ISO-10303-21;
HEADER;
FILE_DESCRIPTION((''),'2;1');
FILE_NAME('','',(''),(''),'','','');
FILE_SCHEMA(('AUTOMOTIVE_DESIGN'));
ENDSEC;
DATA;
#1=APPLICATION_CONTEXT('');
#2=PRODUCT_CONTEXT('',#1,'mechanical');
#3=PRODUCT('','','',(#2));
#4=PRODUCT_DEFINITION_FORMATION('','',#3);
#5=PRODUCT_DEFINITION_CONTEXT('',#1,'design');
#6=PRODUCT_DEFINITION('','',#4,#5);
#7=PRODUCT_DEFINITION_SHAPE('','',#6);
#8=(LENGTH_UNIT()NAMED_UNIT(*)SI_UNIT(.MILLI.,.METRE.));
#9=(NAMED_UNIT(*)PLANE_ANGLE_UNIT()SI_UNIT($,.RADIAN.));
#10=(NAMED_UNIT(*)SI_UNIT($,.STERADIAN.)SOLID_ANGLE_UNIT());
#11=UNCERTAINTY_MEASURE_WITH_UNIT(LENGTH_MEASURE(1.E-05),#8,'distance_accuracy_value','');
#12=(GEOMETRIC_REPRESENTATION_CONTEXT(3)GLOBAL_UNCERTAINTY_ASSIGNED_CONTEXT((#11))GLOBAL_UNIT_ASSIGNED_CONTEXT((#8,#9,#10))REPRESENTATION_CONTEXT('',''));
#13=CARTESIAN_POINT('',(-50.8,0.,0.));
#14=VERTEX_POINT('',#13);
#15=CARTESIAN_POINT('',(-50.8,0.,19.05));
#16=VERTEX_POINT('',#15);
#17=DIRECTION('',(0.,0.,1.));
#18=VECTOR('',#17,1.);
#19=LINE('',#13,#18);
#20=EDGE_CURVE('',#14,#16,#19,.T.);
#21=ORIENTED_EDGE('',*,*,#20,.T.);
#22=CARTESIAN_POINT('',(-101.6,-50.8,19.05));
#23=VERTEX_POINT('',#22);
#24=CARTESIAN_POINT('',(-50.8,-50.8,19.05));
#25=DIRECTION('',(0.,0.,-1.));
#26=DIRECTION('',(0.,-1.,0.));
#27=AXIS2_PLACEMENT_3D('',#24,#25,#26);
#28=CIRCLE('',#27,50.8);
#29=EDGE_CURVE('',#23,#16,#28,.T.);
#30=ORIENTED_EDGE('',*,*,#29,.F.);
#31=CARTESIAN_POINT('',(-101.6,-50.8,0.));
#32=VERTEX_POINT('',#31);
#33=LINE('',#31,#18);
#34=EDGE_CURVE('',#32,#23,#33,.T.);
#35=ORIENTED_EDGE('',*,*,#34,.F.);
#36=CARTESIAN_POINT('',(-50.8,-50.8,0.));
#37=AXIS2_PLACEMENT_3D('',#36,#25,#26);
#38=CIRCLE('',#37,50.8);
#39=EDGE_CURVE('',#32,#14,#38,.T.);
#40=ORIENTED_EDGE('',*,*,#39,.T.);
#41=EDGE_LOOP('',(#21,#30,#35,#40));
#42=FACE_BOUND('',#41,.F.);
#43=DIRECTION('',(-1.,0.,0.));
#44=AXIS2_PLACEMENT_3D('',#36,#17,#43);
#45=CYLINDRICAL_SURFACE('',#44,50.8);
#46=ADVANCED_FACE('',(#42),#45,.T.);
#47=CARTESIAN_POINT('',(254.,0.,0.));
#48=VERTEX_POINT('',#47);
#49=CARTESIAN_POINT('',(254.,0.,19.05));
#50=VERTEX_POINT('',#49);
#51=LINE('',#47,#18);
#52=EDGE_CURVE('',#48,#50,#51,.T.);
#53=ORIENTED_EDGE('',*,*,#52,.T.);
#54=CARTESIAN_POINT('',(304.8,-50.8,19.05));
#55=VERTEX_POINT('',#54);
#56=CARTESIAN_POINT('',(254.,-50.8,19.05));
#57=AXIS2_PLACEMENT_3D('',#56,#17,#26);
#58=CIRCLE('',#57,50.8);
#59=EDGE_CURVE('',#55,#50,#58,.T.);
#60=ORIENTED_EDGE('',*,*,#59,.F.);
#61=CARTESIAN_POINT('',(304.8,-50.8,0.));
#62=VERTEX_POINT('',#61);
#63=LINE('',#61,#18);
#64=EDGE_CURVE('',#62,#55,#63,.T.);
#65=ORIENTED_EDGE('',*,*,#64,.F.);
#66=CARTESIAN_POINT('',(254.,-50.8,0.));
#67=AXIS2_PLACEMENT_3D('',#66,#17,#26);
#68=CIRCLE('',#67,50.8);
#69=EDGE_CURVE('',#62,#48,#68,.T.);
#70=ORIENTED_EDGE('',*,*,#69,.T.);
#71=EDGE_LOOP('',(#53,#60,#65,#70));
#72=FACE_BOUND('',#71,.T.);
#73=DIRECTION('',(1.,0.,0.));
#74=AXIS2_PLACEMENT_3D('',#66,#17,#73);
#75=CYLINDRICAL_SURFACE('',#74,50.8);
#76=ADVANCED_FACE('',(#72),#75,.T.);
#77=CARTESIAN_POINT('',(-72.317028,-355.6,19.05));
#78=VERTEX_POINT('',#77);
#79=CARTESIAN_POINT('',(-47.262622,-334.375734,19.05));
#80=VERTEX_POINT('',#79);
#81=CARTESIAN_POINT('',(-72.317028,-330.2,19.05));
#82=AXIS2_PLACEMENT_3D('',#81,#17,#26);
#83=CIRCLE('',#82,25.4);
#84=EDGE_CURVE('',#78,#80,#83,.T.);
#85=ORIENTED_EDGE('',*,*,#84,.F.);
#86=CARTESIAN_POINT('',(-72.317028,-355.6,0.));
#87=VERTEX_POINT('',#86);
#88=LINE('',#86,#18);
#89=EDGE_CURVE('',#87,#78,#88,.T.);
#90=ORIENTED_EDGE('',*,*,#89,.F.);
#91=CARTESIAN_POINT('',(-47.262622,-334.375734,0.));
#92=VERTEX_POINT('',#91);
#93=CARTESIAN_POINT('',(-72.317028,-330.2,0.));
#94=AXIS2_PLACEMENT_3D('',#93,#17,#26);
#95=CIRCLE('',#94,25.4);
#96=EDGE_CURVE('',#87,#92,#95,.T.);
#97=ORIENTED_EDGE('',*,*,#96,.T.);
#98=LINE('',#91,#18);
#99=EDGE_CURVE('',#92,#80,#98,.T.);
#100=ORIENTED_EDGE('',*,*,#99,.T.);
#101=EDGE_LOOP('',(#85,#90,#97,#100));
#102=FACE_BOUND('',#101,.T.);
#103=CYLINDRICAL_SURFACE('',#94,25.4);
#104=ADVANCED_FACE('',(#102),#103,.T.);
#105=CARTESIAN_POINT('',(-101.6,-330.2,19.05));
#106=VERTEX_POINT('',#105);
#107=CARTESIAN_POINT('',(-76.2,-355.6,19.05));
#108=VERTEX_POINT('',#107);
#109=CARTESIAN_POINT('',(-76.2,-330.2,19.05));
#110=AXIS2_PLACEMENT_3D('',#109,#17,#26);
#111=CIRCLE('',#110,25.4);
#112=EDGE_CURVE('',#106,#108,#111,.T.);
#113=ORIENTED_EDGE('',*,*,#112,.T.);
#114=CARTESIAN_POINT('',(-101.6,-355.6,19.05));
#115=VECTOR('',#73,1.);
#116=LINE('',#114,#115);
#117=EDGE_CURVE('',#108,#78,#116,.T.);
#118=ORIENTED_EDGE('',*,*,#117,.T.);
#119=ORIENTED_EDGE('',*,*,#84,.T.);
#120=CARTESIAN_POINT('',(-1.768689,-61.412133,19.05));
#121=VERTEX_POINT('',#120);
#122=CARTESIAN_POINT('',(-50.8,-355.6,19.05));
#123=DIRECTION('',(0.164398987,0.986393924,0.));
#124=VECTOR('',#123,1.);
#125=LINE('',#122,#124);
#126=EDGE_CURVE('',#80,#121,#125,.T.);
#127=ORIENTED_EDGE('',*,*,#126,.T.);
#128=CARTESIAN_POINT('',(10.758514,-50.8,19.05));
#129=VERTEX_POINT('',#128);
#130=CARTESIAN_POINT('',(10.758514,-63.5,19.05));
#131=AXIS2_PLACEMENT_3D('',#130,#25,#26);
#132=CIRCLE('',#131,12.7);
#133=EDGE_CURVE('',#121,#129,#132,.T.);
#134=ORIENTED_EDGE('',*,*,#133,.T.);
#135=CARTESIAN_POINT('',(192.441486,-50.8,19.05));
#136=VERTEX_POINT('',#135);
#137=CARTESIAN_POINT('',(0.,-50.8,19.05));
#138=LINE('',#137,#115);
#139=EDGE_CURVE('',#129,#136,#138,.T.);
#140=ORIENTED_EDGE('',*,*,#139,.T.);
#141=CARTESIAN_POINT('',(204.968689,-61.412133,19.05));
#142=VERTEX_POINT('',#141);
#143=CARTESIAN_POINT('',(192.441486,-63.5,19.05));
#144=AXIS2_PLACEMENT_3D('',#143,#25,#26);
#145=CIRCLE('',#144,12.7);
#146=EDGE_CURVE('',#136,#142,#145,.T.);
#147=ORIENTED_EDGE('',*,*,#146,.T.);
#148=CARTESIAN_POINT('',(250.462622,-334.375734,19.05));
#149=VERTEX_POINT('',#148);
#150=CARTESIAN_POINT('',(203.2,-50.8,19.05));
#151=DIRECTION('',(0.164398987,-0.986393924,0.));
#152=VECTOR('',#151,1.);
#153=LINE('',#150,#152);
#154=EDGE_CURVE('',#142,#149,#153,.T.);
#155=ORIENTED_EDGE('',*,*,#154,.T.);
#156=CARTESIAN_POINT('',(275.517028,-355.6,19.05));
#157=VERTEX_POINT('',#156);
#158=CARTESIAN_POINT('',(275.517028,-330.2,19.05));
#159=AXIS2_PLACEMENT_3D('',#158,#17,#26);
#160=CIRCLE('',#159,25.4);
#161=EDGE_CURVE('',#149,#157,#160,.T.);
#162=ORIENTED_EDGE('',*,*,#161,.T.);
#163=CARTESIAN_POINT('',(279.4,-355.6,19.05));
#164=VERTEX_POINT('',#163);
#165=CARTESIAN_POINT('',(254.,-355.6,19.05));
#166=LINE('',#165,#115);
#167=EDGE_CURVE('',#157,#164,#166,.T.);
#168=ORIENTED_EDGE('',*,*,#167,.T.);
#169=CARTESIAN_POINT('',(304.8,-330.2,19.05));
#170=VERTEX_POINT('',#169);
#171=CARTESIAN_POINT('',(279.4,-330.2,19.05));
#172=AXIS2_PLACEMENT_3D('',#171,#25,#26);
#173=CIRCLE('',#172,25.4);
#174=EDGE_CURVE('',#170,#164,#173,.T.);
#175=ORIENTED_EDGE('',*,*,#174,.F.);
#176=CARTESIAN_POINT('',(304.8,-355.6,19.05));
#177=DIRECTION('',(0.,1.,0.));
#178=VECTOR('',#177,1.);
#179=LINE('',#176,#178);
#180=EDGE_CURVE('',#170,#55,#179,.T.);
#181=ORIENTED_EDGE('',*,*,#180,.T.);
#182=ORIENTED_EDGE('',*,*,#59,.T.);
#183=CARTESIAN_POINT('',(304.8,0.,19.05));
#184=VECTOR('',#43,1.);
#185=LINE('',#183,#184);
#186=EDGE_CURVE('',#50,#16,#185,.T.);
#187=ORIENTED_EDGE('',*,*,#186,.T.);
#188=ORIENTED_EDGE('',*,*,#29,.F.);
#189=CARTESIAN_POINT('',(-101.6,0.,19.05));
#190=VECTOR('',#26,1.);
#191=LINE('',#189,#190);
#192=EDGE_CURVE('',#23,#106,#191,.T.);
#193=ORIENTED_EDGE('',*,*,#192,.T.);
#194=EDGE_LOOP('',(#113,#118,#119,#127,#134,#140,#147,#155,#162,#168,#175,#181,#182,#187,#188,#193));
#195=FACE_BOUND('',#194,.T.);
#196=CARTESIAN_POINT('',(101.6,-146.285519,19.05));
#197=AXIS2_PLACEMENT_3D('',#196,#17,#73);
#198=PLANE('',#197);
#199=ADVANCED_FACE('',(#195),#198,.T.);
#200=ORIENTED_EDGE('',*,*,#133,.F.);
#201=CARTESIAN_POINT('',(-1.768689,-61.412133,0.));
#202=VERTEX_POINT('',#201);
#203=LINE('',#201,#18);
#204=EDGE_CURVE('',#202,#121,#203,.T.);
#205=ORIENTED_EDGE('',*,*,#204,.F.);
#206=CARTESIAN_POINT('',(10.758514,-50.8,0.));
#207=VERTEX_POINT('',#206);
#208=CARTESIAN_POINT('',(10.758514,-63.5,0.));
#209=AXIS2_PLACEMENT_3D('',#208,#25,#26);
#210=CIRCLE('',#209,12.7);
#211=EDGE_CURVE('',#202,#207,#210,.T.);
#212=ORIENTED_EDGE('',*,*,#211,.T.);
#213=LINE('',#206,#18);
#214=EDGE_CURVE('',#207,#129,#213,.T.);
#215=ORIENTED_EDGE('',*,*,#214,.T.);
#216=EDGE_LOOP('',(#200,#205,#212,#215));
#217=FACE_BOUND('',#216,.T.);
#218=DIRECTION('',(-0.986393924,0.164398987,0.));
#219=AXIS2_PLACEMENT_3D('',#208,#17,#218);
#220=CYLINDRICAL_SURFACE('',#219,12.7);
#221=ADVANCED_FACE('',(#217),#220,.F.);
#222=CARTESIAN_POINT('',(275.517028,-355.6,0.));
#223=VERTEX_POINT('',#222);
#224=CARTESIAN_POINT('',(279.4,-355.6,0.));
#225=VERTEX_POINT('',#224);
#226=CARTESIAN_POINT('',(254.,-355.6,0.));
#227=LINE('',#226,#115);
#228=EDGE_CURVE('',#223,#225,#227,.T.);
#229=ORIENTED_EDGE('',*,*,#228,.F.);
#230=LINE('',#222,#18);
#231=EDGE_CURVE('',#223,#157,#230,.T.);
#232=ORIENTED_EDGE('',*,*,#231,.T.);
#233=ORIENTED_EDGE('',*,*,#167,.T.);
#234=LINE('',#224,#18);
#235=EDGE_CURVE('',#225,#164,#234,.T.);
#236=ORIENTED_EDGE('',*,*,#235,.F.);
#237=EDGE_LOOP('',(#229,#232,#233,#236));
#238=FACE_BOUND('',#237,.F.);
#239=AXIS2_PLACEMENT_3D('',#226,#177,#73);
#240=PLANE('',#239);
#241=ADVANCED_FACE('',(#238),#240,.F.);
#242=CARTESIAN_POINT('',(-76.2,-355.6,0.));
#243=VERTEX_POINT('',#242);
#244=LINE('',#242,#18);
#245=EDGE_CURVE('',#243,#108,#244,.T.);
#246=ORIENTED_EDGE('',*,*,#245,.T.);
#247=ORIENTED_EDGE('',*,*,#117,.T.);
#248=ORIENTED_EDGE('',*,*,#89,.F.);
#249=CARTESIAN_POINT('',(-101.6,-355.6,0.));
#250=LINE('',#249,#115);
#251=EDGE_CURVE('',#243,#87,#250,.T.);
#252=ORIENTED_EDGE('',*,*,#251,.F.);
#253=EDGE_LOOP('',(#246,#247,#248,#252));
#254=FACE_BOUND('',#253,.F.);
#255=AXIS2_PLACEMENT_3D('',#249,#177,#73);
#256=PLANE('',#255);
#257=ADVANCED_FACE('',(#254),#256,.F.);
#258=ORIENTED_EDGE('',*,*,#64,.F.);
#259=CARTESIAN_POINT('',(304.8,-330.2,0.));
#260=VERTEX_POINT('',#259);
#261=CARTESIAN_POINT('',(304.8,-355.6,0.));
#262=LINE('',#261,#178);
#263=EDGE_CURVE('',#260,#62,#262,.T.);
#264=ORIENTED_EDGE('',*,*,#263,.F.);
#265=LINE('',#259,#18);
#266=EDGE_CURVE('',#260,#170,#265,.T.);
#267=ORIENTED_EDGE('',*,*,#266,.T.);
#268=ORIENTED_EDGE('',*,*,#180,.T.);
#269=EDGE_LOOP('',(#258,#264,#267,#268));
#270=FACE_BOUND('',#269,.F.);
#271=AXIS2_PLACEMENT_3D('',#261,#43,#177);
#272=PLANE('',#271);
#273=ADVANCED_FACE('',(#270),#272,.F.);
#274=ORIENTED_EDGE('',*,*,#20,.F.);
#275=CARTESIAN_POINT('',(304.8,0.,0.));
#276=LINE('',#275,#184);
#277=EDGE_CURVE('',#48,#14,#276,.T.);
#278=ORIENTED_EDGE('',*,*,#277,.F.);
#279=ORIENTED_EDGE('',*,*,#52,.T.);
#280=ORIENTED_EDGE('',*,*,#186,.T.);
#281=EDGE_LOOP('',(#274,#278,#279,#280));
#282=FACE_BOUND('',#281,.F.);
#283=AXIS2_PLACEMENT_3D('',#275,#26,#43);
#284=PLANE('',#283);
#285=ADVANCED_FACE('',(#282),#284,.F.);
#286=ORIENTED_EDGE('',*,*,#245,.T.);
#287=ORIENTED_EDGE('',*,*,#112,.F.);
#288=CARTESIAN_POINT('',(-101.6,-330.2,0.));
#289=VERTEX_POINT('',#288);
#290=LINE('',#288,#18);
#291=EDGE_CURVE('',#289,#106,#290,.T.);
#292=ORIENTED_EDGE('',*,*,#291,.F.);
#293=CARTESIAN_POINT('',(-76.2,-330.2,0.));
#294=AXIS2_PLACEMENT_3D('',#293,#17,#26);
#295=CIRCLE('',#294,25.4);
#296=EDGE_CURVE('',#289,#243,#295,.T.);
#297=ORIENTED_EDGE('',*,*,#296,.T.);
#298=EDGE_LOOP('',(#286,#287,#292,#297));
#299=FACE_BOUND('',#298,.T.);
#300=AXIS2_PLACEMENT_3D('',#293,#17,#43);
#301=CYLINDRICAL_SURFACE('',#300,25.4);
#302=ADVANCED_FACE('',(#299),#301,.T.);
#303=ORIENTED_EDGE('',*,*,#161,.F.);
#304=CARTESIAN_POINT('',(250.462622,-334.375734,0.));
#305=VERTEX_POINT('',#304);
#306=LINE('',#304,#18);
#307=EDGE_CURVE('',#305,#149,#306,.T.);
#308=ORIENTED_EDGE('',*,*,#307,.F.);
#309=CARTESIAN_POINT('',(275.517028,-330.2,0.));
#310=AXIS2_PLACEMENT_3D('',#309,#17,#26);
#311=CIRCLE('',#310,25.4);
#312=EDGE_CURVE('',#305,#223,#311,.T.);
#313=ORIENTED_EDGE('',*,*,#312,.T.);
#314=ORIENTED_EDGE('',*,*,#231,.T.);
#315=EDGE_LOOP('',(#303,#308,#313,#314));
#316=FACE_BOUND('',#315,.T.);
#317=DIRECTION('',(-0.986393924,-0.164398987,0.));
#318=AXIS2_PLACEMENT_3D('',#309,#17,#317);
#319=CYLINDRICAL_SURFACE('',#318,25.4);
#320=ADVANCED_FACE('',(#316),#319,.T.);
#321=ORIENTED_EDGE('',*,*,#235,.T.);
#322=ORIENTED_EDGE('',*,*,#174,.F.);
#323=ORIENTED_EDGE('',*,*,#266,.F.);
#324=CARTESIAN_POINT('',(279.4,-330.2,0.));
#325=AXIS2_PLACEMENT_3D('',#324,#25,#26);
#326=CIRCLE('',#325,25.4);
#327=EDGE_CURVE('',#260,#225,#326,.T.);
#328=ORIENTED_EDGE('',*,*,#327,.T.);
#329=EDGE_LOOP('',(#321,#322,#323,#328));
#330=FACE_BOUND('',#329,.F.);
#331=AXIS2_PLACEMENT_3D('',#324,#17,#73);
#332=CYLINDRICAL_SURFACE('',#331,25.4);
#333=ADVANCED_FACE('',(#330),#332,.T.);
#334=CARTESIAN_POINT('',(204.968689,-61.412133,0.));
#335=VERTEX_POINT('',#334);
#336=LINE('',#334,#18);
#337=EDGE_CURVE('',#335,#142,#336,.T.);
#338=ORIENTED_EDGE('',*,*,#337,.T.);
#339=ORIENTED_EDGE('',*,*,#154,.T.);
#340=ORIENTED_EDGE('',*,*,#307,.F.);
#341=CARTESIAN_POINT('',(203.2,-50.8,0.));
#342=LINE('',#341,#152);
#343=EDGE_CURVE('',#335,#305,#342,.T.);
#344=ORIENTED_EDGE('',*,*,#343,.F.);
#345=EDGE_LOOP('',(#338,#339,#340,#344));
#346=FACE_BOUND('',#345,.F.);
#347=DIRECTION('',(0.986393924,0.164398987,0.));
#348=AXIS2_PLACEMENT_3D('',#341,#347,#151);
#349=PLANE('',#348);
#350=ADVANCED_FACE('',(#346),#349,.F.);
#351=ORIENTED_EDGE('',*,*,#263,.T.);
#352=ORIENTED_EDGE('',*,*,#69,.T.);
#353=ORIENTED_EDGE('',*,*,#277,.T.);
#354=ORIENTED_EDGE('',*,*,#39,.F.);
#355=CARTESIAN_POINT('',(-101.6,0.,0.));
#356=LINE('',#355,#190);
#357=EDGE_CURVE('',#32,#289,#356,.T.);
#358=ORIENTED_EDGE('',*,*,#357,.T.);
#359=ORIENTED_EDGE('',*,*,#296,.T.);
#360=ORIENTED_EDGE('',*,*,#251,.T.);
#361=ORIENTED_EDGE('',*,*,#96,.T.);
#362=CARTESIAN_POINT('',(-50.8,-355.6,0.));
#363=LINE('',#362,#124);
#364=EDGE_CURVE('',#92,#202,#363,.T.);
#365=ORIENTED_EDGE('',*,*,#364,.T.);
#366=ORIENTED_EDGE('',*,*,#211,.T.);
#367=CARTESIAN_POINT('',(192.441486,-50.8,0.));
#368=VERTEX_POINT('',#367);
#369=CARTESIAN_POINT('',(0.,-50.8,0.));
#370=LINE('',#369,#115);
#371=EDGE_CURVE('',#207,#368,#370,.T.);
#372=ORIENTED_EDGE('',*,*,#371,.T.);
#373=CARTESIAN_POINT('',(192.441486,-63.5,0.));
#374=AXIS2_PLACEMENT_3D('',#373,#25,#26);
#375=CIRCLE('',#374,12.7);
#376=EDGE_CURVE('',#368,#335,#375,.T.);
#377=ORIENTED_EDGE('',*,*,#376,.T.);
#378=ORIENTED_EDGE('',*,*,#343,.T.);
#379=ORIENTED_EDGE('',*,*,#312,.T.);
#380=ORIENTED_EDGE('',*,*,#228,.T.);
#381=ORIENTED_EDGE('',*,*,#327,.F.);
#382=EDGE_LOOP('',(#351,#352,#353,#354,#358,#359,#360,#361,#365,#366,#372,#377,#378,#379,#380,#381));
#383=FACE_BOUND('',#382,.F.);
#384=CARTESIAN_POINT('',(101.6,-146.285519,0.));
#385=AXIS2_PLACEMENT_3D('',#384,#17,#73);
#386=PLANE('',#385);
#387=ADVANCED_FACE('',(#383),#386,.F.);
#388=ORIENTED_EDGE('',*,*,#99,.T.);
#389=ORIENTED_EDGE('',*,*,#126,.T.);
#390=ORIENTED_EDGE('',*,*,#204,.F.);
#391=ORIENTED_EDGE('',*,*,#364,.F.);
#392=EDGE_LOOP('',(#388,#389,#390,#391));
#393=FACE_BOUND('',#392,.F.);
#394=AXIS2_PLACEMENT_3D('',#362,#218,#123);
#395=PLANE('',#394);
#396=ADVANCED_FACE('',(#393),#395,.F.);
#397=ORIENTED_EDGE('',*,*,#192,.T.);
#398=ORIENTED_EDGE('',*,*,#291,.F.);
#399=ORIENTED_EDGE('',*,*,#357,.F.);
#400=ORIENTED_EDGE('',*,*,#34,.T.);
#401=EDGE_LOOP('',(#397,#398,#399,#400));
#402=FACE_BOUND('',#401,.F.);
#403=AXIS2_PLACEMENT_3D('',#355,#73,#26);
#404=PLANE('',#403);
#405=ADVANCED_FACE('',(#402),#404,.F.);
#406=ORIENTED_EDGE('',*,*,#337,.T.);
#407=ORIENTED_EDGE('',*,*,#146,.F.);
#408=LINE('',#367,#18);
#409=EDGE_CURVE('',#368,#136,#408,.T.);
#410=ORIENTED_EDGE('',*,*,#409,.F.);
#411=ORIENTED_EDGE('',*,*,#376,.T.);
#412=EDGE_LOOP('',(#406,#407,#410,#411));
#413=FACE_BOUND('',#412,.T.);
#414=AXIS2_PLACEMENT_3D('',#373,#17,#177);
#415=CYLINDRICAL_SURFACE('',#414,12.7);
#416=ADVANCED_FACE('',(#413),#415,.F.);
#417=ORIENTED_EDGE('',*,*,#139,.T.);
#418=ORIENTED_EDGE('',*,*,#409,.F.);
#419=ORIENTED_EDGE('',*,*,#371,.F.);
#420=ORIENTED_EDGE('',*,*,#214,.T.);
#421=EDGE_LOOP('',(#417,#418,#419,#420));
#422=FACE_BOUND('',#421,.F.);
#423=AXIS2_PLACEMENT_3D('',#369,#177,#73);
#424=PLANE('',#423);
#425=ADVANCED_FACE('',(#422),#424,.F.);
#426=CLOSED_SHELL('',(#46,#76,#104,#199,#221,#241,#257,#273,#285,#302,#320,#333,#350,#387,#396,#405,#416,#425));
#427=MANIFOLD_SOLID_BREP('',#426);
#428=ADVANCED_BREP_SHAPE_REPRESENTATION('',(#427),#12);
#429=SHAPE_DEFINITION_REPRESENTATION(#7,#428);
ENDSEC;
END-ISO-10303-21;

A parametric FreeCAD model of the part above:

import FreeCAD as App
import Part
import Sketcher
Q = App.Units.Quantity


def edges_at(feature, points):
    """Names of the edges that pass closest to the given points."""
    edges = feature.Shape.Edges
    near = lambda p: min(range(len(edges)), key=lambda i: edges[i].distToShape(Part.Vertex(*p))[0])
    return sorted({f"Edge{near(p) + 1}" for p in points})


def add_polygon(sketch, points):
    """Adds a closed chain of lines whose ends are joined by coincident constraints."""
    first, n = sketch.GeometryCount, len(points)
    for a, b in zip(points, points[1:] + points[:1]):
        sketch.addGeometry(Part.LineSegment(App.Vector(*a, 0), App.Vector(*b, 0)), False)
    for i in range(n):
        sketch.addConstraint(Sketcher.Constraint("Coincident", first + i, 2, first + (i + 1) % n, 1))

doc = App.newDocument("Part")
body = doc.addObject("PartDesign::Body", "Body")

# Sketch on XY plane
sketch1 = body.newObject("Sketcher::SketchObject", "Sketch")
sketch1.AttachmentSupport = (doc.getObject("XY_Plane"), [""])
sketch1.MapMode = "FlatFace"
add_polygon(sketch1, [(-102, 0), (-102, -356), (-51, -356), (0, -51), (203, -51), (254, -356), (305, -356), (305, 0)])  # lines 0-7
sketch1.addConstraint([
    Sketcher.Constraint("Vertical", 0),
    Sketcher.Constraint("Horizontal", 1),
    Sketcher.Constraint("Horizontal", 3),
    Sketcher.Constraint("Horizontal", 5),
    Sketcher.Constraint("Vertical", 6),
    Sketcher.Constraint("Horizontal", 7),
    Sketcher.Constraint("PointOnObject", 2, 2, -2),
    Sketcher.Constraint("PointOnObject", 6, 2, -1),
    Sketcher.Constraint("Horizontal", 1, 2, 4, 2),
    Sketcher.Constraint("Equal", 1, 5),
    Sketcher.Constraint("Equal", 2, 4),
    Sketcher.Constraint("DistanceX", 1, 1, 1, 2, Q("2 in")),
    Sketcher.Constraint("DistanceX", 3, 1, 3, 2, Q("8 in")),
    Sketcher.Constraint("DistanceX", 7, 2, 7, 1, Q("16 in")),
    Sketcher.Constraint("DistanceY", 0, 2, 0, 1, Q("14 in")),
    Sketcher.Constraint("DistanceY", 2, 2, -1, 1, Q("2 in")),
])
pad1 = body.newObject("PartDesign::Pad", "Pad")
pad1.Profile = sketch1
pad1.Length = Q("0.75 in")
doc.recompute()

fillet = body.newObject("PartDesign::Fillet", "Fillet")
fillet.Base = (pad1, edges_at(pad1, [(-101.6, 0, 9.525), (304.8, 0, 9.525)]))
fillet.Radius = Q("2 in")
doc.recompute()

fillet2 = body.newObject("PartDesign::Fillet", "Fillet001")
fillet2.Base = (fillet, edges_at(fillet, [
    (-101.6, -355.6, 9.525),
    (-50.8, -355.6, 9.525),
    (304.8, -355.6, 9.525),
    (254, -355.6, 9.525),
]))
fillet2.Radius = Q("1 in")
doc.recompute()

fillet3 = body.newObject("PartDesign::Fillet", "Fillet002")
fillet3.Base = (fillet2, edges_at(fillet2, [(203.2, -50.8, 9.525), (0, -50.8, 9.525)]))
fillet3.Radius = Q("0.5 in")

doc.recompute()
